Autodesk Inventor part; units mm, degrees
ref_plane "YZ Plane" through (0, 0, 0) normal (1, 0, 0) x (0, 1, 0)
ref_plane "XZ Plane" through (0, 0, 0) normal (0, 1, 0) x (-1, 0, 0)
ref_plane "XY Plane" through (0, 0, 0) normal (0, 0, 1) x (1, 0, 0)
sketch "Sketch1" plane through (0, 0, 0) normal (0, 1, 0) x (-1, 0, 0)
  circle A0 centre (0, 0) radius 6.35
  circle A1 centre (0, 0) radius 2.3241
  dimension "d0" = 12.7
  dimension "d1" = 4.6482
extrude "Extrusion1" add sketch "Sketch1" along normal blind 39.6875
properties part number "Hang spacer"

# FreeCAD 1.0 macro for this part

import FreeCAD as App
import Part
import Sketcher

V = App.Vector
Q = App.Units.Quantity

doc = App.newDocument("Part")
body = doc.addObject("PartDesign::Body", "Body")

# Sketch on XZ plane
sketch1 = body.newObject("Sketcher::SketchObject", "Sketch")
sketch1.AttachmentSupport = (doc.getObject("XZ_Plane"), [""])
sketch1.MapMode = "FlatFace"
sketch1.addGeometry([
    Part.Circle(V(0, 0, 0), V(0, 0, 1), 6.35),
    Part.Circle(V(0, 0, 0), V(0, 0, 1), 2.3241),
], False)
sketch1.addConstraint([
    Sketcher.Constraint("Coincident", 0, 3, -1, 1),
    Sketcher.Constraint("Coincident", 1, 3, -1, 1),
    Sketcher.Constraint("Diameter", 0, Q("0.5 in")),
    Sketcher.Constraint("Diameter", 1, Q("0.183 in")),
])
pad1 = body.newObject("PartDesign::Pad", "Pad")
pad1.Profile = sketch1
pad1.Length = Q("1.5625 in")
pad1.Reversed = True

doc.recompute()
